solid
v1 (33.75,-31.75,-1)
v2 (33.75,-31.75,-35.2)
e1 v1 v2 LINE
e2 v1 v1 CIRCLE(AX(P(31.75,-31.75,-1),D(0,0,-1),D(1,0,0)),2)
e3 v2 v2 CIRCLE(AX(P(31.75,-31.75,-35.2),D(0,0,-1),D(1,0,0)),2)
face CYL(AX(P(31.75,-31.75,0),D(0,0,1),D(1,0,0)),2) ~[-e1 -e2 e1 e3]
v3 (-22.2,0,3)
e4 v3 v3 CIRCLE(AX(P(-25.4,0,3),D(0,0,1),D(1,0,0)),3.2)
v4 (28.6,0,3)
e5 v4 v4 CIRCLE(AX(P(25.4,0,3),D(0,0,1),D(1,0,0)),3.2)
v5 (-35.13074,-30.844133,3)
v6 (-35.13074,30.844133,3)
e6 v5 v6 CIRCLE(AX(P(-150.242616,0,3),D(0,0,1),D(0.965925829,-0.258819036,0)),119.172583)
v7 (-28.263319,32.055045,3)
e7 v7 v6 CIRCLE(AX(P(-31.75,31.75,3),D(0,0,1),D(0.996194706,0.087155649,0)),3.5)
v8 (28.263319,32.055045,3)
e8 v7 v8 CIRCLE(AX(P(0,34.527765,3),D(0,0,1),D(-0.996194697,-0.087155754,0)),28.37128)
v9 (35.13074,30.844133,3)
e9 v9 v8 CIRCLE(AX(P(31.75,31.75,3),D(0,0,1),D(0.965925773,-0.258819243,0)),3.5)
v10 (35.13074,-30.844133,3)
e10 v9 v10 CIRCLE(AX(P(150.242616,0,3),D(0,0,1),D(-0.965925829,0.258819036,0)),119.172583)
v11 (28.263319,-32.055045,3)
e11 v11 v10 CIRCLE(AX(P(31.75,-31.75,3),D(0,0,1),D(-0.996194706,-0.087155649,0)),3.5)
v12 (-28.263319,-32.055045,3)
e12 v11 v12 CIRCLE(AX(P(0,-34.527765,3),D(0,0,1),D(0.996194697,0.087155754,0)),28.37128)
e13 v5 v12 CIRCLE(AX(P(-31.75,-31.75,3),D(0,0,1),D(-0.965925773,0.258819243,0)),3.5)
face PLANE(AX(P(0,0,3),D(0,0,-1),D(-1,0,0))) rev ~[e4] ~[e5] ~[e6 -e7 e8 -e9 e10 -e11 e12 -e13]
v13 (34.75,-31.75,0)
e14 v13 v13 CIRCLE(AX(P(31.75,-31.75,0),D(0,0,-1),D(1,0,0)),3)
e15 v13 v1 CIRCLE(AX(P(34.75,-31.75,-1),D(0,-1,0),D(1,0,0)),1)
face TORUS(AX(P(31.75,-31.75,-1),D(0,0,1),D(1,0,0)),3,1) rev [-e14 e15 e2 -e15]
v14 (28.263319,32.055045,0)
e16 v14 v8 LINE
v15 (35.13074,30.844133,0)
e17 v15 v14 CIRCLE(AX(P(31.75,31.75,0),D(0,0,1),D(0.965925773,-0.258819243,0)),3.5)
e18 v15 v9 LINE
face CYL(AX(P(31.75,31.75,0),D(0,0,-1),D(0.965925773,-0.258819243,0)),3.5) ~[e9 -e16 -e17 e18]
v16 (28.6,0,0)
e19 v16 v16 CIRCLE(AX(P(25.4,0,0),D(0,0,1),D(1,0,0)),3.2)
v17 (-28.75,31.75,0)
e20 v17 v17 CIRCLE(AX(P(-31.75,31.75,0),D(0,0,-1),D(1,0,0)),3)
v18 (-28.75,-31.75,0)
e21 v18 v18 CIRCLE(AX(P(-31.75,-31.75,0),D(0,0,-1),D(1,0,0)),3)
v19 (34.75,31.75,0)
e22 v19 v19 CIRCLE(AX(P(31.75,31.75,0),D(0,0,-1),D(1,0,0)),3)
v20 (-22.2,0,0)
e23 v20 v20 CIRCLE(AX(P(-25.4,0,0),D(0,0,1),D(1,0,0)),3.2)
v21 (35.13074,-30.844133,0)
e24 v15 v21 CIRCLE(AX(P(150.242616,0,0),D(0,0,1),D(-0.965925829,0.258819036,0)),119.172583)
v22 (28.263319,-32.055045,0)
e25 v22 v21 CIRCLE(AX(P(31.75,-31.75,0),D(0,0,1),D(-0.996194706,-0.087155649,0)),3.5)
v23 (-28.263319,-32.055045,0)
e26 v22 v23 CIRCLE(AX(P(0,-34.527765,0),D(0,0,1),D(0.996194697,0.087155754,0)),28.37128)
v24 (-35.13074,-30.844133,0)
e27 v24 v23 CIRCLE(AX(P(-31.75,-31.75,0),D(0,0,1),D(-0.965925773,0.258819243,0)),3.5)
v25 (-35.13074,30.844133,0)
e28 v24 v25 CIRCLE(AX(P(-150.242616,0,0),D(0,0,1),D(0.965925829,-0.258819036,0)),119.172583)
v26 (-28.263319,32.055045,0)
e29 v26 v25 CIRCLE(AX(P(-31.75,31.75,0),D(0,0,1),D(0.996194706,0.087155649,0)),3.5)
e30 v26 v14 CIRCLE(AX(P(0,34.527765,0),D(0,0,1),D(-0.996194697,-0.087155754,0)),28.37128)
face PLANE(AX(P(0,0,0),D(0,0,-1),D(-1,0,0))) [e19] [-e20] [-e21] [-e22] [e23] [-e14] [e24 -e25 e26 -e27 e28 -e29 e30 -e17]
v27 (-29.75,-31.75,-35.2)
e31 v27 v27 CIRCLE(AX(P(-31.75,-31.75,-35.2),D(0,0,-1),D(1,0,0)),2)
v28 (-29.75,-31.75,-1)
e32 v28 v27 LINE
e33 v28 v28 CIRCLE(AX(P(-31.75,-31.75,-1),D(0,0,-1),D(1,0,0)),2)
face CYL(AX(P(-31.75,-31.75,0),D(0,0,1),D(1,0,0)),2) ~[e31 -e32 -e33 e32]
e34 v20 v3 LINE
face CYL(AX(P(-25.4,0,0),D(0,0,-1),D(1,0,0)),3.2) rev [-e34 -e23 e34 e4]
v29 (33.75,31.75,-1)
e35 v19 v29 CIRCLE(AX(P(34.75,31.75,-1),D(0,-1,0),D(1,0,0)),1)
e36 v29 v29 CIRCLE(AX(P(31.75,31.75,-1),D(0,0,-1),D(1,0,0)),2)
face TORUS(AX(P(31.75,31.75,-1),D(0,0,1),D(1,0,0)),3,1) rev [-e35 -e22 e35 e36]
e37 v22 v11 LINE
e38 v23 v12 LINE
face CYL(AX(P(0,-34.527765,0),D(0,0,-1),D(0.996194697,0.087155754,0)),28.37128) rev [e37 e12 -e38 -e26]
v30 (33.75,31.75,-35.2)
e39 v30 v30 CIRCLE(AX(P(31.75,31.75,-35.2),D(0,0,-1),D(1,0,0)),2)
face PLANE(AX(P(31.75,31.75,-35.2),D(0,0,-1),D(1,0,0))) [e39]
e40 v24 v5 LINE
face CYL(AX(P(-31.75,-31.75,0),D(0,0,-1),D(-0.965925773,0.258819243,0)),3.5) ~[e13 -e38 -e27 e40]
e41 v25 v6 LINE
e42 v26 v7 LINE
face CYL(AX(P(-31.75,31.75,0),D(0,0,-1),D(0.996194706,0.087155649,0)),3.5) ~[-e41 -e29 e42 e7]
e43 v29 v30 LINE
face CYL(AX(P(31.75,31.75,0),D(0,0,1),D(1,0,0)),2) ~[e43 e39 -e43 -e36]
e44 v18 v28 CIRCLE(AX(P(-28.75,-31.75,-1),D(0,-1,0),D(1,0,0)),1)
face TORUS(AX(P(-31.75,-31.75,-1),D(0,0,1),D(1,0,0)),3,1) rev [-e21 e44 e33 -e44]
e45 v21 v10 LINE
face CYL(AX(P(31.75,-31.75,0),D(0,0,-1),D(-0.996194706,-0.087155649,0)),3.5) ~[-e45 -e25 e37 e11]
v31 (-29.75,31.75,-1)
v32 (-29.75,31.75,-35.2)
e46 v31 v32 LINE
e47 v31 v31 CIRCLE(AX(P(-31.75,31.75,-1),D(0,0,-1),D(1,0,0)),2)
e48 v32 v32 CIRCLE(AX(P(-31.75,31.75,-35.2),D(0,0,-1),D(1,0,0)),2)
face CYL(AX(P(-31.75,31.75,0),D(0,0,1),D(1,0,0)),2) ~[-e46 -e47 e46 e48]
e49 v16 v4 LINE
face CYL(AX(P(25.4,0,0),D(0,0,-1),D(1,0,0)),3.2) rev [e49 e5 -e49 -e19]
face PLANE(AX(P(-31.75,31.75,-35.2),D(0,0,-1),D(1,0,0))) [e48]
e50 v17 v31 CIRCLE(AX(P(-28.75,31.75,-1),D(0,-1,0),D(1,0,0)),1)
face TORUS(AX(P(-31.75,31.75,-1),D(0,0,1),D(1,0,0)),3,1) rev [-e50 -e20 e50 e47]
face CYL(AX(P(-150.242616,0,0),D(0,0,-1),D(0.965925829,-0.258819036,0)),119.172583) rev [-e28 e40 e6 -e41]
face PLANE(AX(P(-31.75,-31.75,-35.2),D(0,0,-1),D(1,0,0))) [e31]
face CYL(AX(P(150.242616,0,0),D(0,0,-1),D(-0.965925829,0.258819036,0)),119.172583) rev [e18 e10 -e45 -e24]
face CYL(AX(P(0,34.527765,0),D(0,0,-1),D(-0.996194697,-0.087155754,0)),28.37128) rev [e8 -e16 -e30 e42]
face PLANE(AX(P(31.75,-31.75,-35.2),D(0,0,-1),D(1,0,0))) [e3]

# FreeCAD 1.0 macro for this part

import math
import FreeCAD as App
import Part
import Sketcher

V = App.Vector
Q = App.Units.Quantity


def edges_at(feature, points):
    """Names of the edges that pass closest to the given points."""
    edges = feature.Shape.Edges
    near = lambda p: min(range(len(edges)), key=lambda i: edges[i].distToShape(Part.Vertex(*p))[0])
    return sorted({f"Edge{near(p) + 1}" for p in points})

doc = App.newDocument("Part")
body = doc.addObject("PartDesign::Body", "Body")

sketch1 = body.newObject("Sketcher::SketchObject", "Sketch")
sketch1.AttachmentSupport = (doc.getObject("XY_Plane"), [""])
sketch1.MapMode = "FlatFace"
sketch1.addGeometry(Part.ArcOfCircle(Part.Circle(V(0, 34.5, 0), V(0, 0, 1), 28.4), math.radians(-175), math.radians(-5)), False)
sketch1.addGeometry(Part.ArcOfCircle(Part.Circle(V(-31.8, 31.8, 0), V(0, 0, 1), 3.5), math.radians(5), math.radians(195)), False)
sketch1.addGeometry(Part.ArcOfCircle(Part.Circle(V(-150.2, 0, 0), V(0, 0, 1), 119.2), math.radians(-15), math.radians(15)), False)
sketch1.addGeometry(Part.ArcOfCircle(Part.Circle(V(-31.8, -31.8, 0), V(0, 0, 1), 3.5), math.radians(165), math.radians(355)), False)
sketch1.addGeometry(Part.ArcOfCircle(Part.Circle(V(0, -34.5, 0), V(0, 0, 1), 28.4), math.radians(5), math.radians(175)), False)
sketch1.addGeometry(Part.ArcOfCircle(Part.Circle(V(31.8, -31.8, 0), V(0, 0, 1), 3.5), math.radians(-175), math.radians(15)), False)
sketch1.addGeometry(Part.ArcOfCircle(Part.Circle(V(150.2, 0, 0), V(0, 0, 1), 119.2), math.radians(165), math.radians(195)), False)
sketch1.addGeometry(Part.ArcOfCircle(Part.Circle(V(31.8, 31.8, 0), V(0, 0, 1), 3.5), math.radians(-15), math.radians(175)), False)
sketch1.addGeometry(Part.Circle(V(25.4, 0, 0), V(0, 0, 1), 3.2), False)
sketch1.addGeometry(Part.Circle(V(-25.4, 0, 0), V(0, 0, 1), 3.2), False)
sketch1.addConstraint(Sketcher.Constraint("Tangent", 0, 1, 1, 1))
sketch1.addConstraint(Sketcher.Constraint("Tangent", 1, 2, 2, 2))
sketch1.addConstraint(Sketcher.Constraint("Tangent", 2, 1, 3, 1))
sketch1.addConstraint(Sketcher.Constraint("Tangent", 3, 2, 4, 2))
sketch1.addConstraint(Sketcher.Constraint("Tangent", 4, 1, 5, 1))
sketch1.addConstraint(Sketcher.Constraint("Tangent", 5, 2, 6, 2))
sketch1.addConstraint(Sketcher.Constraint("Tangent", 6, 1, 7, 1))
sketch1.addConstraint(Sketcher.Constraint("Tangent", 7, 2, 0, 2))
sketch1.addConstraint(Sketcher.Constraint("Equal", 1, 3))
sketch1.addConstraint(Sketcher.Constraint("Equal", 0, 4))
sketch1.addConstraint(Sketcher.Constraint("Equal", 3, 5))
sketch1.addConstraint(Sketcher.Constraint("Equal", 2, 6))
sketch1.addConstraint(Sketcher.Constraint("Equal", 5, 7))
sketch1.addConstraint(Sketcher.Constraint("Equal", 8, 9))
sketch1.addConstraint(Sketcher.Constraint("Symmetric", 0, 3, 4, 3, -1, 1))
sketch1.addConstraint(Sketcher.Constraint("Symmetric", 2, 3, 6, 3, -1, 1))
sketch1.addConstraint(Sketcher.Constraint("Symmetric", 8, 3, 9, 3, -1, 1))
sketch1.addConstraint(Sketcher.Constraint("Symmetric", 3, 3, 5, 3, -2))
sketch1.addConstraint(Sketcher.Constraint("PointOnObject", 8, 3, -1))
sketch1.addConstraint(Sketcher.Constraint("Diameter", 8, Q("6.4 mm")))
sketch1.addConstraint(Sketcher.Constraint("Radius", 1, Q("3.5 mm")))
sketch1.addConstraint(Sketcher.Constraint("DistanceX", -1, 1, 8, 3, Q("25.4 mm")))
sketch1.addConstraint(Sketcher.Constraint("DistanceY", 3, 3, 1, 3, Q("63.500001 mm")))
sketch1.addConstraint(Sketcher.Constraint("DistanceX", 3, 3, 5, 3, Q("63.5 mm")))
sketch1.addConstraint(Sketcher.Constraint("Radius", 0, Q("28.37128 mm")))
sketch1.addConstraint(Sketcher.Constraint("Radius", 2, Q("119.172583 mm")))
pad1 = body.newObject("PartDesign::Pad", "Pad")
pad1.Profile = sketch1
pad1.Length = 3

sketch2 = body.newObject("Sketcher::SketchObject", "Sketch001")
sketch2.AttachmentSupport = (doc.getObject("XY_Plane"), [""])
sketch2.MapMode = "FlatFace"
sketch2.addGeometry(Part.Circle(V(-31.8, -31.8, 0), V(0, 0, 1), 2), False)
sketch2.addGeometry(Part.Circle(V(31.8, -31.8, 0), V(0, 0, 1), 2), False)
sketch2.addGeometry(Part.Circle(V(-31.8, 31.8, 0), V(0, 0, 1), 2), False)
sketch2.addGeometry(Part.Circle(V(31.8, 31.8, 0), V(0, 0, 1), 2), False)
sketch2.addConstraint(Sketcher.Constraint("Equal", 0, 1))
sketch2.addConstraint(Sketcher.Constraint("Equal", 1, 2))
sketch2.addConstraint(Sketcher.Constraint("Equal", 2, 3))
sketch2.addConstraint(Sketcher.Constraint("Symmetric", 1, 3, 2, 3, -1, 1))
sketch2.addConstraint(Sketcher.Constraint("Symmetric", 0, 3, 3, 3, -1, 1))
sketch2.addConstraint(Sketcher.Constraint("Symmetric", 0, 3, 1, 3, -2))
sketch2.addConstraint(Sketcher.Constraint("Diameter", 0, Q("4 mm")))
sketch2.addConstraint(Sketcher.Constraint("DistanceX", 0, 3, 1, 3, Q("63.5 mm")))
sketch2.addConstraint(Sketcher.Constraint("DistanceY", 0, 3, 2, 3, Q("63.5 mm")))
pad2 = body.newObject("PartDesign::Pad", "Pad001")
pad2.Profile = sketch2
pad2.Length = 35.2
pad2.Reversed = True
doc.recompute()

fillet = body.newObject("PartDesign::Fillet", "Fillet")
fillet.Base = (pad2, edges_at(pad2, [
    (29.75, 31.75, 0),
    (29.75, -31.75, 0),
    (-33.75, 31.75, 0),
    (-33.75, -31.75, 0),
]))
fillet.Radius = 1

doc.recompute()
